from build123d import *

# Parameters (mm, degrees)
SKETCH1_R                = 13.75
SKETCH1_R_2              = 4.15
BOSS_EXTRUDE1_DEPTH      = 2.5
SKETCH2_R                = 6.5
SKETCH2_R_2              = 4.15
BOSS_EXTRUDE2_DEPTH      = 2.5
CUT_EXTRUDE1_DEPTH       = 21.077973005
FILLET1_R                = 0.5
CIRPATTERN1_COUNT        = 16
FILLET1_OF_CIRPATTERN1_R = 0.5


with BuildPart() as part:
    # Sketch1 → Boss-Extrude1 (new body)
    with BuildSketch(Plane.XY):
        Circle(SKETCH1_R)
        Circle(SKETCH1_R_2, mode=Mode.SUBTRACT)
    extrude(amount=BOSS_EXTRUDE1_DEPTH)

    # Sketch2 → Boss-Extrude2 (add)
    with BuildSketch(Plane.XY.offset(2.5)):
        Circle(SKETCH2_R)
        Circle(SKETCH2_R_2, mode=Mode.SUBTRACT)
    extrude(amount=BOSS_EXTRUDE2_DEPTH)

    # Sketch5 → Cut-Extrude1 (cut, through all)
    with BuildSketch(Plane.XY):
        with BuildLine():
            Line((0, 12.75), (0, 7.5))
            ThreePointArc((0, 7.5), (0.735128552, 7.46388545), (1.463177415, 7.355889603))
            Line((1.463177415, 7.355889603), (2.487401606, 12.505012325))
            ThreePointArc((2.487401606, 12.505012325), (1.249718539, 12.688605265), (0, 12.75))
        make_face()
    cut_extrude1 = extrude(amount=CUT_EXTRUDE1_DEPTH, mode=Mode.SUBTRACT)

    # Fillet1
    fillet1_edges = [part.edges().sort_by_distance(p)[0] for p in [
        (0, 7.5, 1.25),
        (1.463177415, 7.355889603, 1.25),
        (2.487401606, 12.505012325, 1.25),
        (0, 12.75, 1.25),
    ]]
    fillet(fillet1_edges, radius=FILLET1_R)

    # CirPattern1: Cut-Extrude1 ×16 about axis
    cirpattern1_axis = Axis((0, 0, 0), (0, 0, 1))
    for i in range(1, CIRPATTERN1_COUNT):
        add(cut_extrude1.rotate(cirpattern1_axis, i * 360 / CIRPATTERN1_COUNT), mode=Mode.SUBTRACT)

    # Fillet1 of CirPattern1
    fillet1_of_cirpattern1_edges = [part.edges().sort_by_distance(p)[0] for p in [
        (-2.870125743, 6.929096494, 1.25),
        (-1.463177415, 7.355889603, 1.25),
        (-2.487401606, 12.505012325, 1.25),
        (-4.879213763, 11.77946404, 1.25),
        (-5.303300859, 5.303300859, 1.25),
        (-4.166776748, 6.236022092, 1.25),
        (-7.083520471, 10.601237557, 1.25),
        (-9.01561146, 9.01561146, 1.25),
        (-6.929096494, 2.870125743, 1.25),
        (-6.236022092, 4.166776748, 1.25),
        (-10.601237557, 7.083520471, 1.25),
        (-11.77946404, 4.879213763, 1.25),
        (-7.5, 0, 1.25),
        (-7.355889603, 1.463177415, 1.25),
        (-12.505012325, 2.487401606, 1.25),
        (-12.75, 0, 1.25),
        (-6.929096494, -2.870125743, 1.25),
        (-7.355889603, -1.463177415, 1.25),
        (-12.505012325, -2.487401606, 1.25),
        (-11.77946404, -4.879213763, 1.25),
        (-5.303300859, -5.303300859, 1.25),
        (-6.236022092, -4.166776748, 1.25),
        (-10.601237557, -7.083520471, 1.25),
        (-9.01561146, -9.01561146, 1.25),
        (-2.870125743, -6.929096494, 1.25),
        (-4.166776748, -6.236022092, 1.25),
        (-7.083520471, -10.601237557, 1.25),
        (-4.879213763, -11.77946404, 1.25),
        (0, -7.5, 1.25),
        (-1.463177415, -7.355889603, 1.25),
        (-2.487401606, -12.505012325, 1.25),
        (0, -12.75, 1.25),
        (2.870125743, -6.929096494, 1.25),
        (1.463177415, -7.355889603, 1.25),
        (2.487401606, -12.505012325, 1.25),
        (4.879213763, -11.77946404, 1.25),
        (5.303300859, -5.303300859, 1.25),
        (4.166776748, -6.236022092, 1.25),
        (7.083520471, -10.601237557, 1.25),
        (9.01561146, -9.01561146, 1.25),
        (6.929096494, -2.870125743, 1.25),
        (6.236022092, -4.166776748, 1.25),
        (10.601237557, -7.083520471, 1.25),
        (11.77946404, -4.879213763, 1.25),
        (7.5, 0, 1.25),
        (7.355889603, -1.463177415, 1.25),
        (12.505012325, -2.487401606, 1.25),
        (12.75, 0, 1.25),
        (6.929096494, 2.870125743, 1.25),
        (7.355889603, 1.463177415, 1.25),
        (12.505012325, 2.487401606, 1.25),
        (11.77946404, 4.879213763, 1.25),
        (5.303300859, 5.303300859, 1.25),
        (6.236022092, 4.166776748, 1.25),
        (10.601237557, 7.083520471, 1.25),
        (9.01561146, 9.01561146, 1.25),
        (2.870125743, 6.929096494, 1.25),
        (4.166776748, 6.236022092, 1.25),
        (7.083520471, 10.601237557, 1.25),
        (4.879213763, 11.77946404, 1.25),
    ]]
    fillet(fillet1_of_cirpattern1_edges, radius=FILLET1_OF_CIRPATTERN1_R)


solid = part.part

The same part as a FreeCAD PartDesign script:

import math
import FreeCAD as App
import Part
import Sketcher
Q = App.Units.Quantity


def edges_at(feature, points):
    """Names of the edges that pass closest to the given points."""
    edges = feature.Shape.Edges
    near = lambda p: min(range(len(edges)), key=lambda i: edges[i].distToShape(Part.Vertex(*p))[0])
    return sorted({f"Edge{near(p) + 1}" for p in points})

doc = App.newDocument("Part")
params = doc.addObject("Spreadsheet::Sheet", "Params")
for row, (alias, value) in enumerate([
    ("sketch1_diameter", "27.5 mm"),
    ("sketch1_diameter2", "8.3 mm"),
    ("pad1_length", "2.5 mm"),
    ("sketch2_diameter", "13 mm"),
    ("sketch2_diameter2", "8.3 mm"),
    ("pad2_length", "2.5 mm"),
    ("sketch3_radius", "7.5 mm"),
    ("sketch3_radius2", "12.75 mm"),
    ("fillet_radius", "0.5 mm"),
    ("fillet2_radius", "0.5 mm"),
], start=1):
    params.set(f"A{row}", alias)
    params.set(f"B{row}", "=" + value)
    params.setAlias(f"B{row}", alias)

body = doc.addObject("PartDesign::Body", "Body")

# Sketch on XY plane
sketch1 = body.newObject("Sketcher::SketchObject", "Sketch")
sketch1.AttachmentSupport = (doc.getObject("XY_Plane"), [""])
sketch1.MapMode = "FlatFace"
sketch1.addGeometry(Part.Circle(App.Vector(0, 0, 0), App.Vector(0, 0, 1), 13.8), False)
sketch1.addGeometry(Part.Circle(App.Vector(0, 0, 0), App.Vector(0, 0, 1), 4.2), False)
sketch1.addConstraint(Sketcher.Constraint("Coincident", 0, 3, -1, 1))
sketch1.addConstraint(Sketcher.Constraint("Coincident", 1, 3, -1, 1))
sketch1.addConstraint(Sketcher.Constraint("Diameter", 0, 27.5))
sketch1.addConstraint(Sketcher.Constraint("Diameter", 1, 8.3))
sketch1.setExpression("Constraints[2]", "Params.sketch1_diameter")
sketch1.setExpression("Constraints[3]", "Params.sketch1_diameter2")
pad1 = body.newObject("PartDesign::Pad", "Pad")
pad1.Profile = sketch1
pad1.setExpression("Length", "Params.pad1_length")

# Sketch on XY plane
sketch2 = body.newObject("Sketcher::SketchObject", "Sketch001")
sketch2.AttachmentSupport = (doc.getObject("XY_Plane"), [""])
sketch2.MapMode = "FlatFace"
sketch2.AttachmentOffset = App.Placement(App.Vector(0, 0, 2.5), App.Rotation())
sketch2.addGeometry(Part.Circle(App.Vector(0, 0, 0), App.Vector(0, 0, 1), 6.5), False)
sketch2.addGeometry(Part.Circle(App.Vector(0, 0, 0), App.Vector(0, 0, 1), 4.2), False)
sketch2.addConstraint(Sketcher.Constraint("Coincident", 0, 3, -1, 1))
sketch2.addConstraint(Sketcher.Constraint("Coincident", 1, 3, -1, 1))
sketch2.addConstraint(Sketcher.Constraint("Diameter", 0, 13.0))
sketch2.addConstraint(Sketcher.Constraint("Diameter", 1, 8.3))
sketch2.setExpression("Constraints[2]", "Params.sketch2_diameter")
sketch2.setExpression("Constraints[3]", "Params.sketch2_diameter2")
pad2 = body.newObject("PartDesign::Pad", "Pad001")
pad2.Profile = sketch2
pad2.setExpression("Length", "Params.pad2_length")

# Sketch on XY plane
sketch3 = body.newObject("Sketcher::SketchObject", "Sketch002")
sketch3.AttachmentSupport = (doc.getObject("XY_Plane"), [""])
sketch3.MapMode = "FlatFace"
sketch3.addGeometry(Part.LineSegment(App.Vector(0, 12.8, 0), App.Vector(0, 7.5, 0)), False)
sketch3.addGeometry(Part.ArcOfCircle(Part.Circle(App.Vector(0, 0, 0), App.Vector(0, 0, 1), 7.5), math.radians(78.75), math.radians(90)), False)
sketch3.addGeometry(Part.LineSegment(App.Vector(1.5, 7.4, 0), App.Vector(2.5, 12.5, 0)), False)
sketch3.addGeometry(Part.ArcOfCircle(Part.Circle(App.Vector(0, 0, 0), App.Vector(0, 0, 1), 12.8), math.radians(78.75), math.radians(90)), False)
sketch3.addConstraint(Sketcher.Constraint("Coincident", 0, 2, 1, 2))
sketch3.addConstraint(Sketcher.Constraint("Coincident", 1, 1, 2, 1))
sketch3.addConstraint(Sketcher.Constraint("Coincident", 2, 2, 3, 1))
sketch3.addConstraint(Sketcher.Constraint("Coincident", 3, 2, 0, 1))
sketch3.addConstraint(Sketcher.Constraint("Vertical", 0))
sketch3.addConstraint(Sketcher.Constraint("Coincident", 1, 3, -1, 1))
sketch3.addConstraint(Sketcher.Constraint("Coincident", 3, 3, -1, 1))
sketch3.addConstraint(Sketcher.Constraint("PointOnObject", 0, 2, -2))
sketch3.addConstraint(Sketcher.Constraint("Radius", 1, 7.5))
sketch3.addConstraint(Sketcher.Constraint("Radius", 3, 12.75))
sketch3.addConstraint(Sketcher.Constraint("Angle", 2, Q("78.75 deg")))
sketch3.addConstraint(Sketcher.Constraint("DistanceX", -1, 1, 2, 2, 2.487402))
sketch3.setExpression("Constraints[8]", "Params.sketch3_radius")
sketch3.setExpression("Constraints[9]", "Params.sketch3_radius2")
pocket1 = body.newObject("PartDesign::Pocket", "Pocket")
pocket1.Profile = sketch3
pocket1.Type = "ThroughAll"
pocket1.Reversed = True
doc.recompute()

fillet = body.newObject("PartDesign::Fillet", "Fillet")
fillet.Base = (pocket1, edges_at(pocket1, [
    (0, 7.5, 1.25),
    (1.463, 7.356, 1.25),
    (2.487, 12.505, 1.25),
    (0, 12.75, 1.25),
]))
fillet.setExpression("Radius", "Params.fillet_radius")
doc.recompute()

polarpattern = body.newObject("PartDesign::PolarPattern", "PolarPattern")
polarpattern.Originals = [pocket1]
polarpattern.Axis = (doc.getObject("Z_Axis"), [""])
polarpattern.Angle = 360
polarpattern.Occurrences = 16
body.Tip = polarpattern
doc.recompute()

fillet2 = body.newObject("PartDesign::Fillet", "Fillet001")
fillet2.Base = (polarpattern, edges_at(polarpattern, [
    (-2.87, 6.929, 1.25),
    (-1.463, 7.356, 1.25),
    (-2.487, 12.505, 1.25),
    (-4.879, 11.779, 1.25),
    (-5.303, 5.303, 1.25),
    (-4.167, 6.236, 1.25),
    (-7.084, 10.601, 1.25),
    (-9.016, 9.016, 1.25),
    (-6.929, 2.87, 1.25),
    (-6.236, 4.167, 1.25),
    (-10.601, 7.084, 1.25),
    (-11.779, 4.879, 1.25),
    (-7.5, 0, 1.25),
    (-7.356, 1.463, 1.25),
    (-12.505, 2.487, 1.25),
    (-12.75, 0, 1.25),
    (-6.929, -2.87, 1.25),
    (-7.356, -1.463, 1.25),
    (-12.505, -2.487, 1.25),
    (-11.779, -4.879, 1.25),
    (-5.303, -5.303, 1.25),
    (-6.236, -4.167, 1.25),
    (-10.601, -7.084, 1.25),
    (-9.016, -9.016, 1.25),
    (-2.87, -6.929, 1.25),
    (-4.167, -6.236, 1.25),
    (-7.084, -10.601, 1.25),
    (-4.879, -11.779, 1.25),
    (0, -7.5, 1.25),
    (-1.463, -7.356, 1.25),
    (-2.487, -12.505, 1.25),
    (0, -12.75, 1.25),
    (2.87, -6.929, 1.25),
    (1.463, -7.356, 1.25),
    (2.487, -12.505, 1.25),
    (4.879, -11.779, 1.25),
    (5.303, -5.303, 1.25),
    (4.167, -6.236, 1.25),
    (7.084, -10.601, 1.25),
    (9.016, -9.016, 1.25),
    (6.929, -2.87, 1.25),
    (6.236, -4.167, 1.25),
    (10.601, -7.084, 1.25),
    (11.779, -4.879, 1.25),
    (7.5, 0, 1.25),
    (7.356, -1.463, 1.25),
    (12.505, -2.487, 1.25),
    (12.75, 0, 1.25),
    (6.929, 2.87, 1.25),
    (7.356, 1.463, 1.25),
    (12.505, 2.487, 1.25),
    (11.779, 4.879, 1.25),
    (5.303, 5.303, 1.25),
    (6.236, 4.167, 1.25),
    (10.601, 7.084, 1.25),
    (9.016, 9.016, 1.25),
    (2.87, 6.929, 1.25),
    (4.167, 6.236, 1.25),
    (7.084, 10.601, 1.25),
    (4.879, 11.779, 1.25),
]))
fillet2.setExpression("Radius", "Params.fillet2_radius")

doc.recompute()
